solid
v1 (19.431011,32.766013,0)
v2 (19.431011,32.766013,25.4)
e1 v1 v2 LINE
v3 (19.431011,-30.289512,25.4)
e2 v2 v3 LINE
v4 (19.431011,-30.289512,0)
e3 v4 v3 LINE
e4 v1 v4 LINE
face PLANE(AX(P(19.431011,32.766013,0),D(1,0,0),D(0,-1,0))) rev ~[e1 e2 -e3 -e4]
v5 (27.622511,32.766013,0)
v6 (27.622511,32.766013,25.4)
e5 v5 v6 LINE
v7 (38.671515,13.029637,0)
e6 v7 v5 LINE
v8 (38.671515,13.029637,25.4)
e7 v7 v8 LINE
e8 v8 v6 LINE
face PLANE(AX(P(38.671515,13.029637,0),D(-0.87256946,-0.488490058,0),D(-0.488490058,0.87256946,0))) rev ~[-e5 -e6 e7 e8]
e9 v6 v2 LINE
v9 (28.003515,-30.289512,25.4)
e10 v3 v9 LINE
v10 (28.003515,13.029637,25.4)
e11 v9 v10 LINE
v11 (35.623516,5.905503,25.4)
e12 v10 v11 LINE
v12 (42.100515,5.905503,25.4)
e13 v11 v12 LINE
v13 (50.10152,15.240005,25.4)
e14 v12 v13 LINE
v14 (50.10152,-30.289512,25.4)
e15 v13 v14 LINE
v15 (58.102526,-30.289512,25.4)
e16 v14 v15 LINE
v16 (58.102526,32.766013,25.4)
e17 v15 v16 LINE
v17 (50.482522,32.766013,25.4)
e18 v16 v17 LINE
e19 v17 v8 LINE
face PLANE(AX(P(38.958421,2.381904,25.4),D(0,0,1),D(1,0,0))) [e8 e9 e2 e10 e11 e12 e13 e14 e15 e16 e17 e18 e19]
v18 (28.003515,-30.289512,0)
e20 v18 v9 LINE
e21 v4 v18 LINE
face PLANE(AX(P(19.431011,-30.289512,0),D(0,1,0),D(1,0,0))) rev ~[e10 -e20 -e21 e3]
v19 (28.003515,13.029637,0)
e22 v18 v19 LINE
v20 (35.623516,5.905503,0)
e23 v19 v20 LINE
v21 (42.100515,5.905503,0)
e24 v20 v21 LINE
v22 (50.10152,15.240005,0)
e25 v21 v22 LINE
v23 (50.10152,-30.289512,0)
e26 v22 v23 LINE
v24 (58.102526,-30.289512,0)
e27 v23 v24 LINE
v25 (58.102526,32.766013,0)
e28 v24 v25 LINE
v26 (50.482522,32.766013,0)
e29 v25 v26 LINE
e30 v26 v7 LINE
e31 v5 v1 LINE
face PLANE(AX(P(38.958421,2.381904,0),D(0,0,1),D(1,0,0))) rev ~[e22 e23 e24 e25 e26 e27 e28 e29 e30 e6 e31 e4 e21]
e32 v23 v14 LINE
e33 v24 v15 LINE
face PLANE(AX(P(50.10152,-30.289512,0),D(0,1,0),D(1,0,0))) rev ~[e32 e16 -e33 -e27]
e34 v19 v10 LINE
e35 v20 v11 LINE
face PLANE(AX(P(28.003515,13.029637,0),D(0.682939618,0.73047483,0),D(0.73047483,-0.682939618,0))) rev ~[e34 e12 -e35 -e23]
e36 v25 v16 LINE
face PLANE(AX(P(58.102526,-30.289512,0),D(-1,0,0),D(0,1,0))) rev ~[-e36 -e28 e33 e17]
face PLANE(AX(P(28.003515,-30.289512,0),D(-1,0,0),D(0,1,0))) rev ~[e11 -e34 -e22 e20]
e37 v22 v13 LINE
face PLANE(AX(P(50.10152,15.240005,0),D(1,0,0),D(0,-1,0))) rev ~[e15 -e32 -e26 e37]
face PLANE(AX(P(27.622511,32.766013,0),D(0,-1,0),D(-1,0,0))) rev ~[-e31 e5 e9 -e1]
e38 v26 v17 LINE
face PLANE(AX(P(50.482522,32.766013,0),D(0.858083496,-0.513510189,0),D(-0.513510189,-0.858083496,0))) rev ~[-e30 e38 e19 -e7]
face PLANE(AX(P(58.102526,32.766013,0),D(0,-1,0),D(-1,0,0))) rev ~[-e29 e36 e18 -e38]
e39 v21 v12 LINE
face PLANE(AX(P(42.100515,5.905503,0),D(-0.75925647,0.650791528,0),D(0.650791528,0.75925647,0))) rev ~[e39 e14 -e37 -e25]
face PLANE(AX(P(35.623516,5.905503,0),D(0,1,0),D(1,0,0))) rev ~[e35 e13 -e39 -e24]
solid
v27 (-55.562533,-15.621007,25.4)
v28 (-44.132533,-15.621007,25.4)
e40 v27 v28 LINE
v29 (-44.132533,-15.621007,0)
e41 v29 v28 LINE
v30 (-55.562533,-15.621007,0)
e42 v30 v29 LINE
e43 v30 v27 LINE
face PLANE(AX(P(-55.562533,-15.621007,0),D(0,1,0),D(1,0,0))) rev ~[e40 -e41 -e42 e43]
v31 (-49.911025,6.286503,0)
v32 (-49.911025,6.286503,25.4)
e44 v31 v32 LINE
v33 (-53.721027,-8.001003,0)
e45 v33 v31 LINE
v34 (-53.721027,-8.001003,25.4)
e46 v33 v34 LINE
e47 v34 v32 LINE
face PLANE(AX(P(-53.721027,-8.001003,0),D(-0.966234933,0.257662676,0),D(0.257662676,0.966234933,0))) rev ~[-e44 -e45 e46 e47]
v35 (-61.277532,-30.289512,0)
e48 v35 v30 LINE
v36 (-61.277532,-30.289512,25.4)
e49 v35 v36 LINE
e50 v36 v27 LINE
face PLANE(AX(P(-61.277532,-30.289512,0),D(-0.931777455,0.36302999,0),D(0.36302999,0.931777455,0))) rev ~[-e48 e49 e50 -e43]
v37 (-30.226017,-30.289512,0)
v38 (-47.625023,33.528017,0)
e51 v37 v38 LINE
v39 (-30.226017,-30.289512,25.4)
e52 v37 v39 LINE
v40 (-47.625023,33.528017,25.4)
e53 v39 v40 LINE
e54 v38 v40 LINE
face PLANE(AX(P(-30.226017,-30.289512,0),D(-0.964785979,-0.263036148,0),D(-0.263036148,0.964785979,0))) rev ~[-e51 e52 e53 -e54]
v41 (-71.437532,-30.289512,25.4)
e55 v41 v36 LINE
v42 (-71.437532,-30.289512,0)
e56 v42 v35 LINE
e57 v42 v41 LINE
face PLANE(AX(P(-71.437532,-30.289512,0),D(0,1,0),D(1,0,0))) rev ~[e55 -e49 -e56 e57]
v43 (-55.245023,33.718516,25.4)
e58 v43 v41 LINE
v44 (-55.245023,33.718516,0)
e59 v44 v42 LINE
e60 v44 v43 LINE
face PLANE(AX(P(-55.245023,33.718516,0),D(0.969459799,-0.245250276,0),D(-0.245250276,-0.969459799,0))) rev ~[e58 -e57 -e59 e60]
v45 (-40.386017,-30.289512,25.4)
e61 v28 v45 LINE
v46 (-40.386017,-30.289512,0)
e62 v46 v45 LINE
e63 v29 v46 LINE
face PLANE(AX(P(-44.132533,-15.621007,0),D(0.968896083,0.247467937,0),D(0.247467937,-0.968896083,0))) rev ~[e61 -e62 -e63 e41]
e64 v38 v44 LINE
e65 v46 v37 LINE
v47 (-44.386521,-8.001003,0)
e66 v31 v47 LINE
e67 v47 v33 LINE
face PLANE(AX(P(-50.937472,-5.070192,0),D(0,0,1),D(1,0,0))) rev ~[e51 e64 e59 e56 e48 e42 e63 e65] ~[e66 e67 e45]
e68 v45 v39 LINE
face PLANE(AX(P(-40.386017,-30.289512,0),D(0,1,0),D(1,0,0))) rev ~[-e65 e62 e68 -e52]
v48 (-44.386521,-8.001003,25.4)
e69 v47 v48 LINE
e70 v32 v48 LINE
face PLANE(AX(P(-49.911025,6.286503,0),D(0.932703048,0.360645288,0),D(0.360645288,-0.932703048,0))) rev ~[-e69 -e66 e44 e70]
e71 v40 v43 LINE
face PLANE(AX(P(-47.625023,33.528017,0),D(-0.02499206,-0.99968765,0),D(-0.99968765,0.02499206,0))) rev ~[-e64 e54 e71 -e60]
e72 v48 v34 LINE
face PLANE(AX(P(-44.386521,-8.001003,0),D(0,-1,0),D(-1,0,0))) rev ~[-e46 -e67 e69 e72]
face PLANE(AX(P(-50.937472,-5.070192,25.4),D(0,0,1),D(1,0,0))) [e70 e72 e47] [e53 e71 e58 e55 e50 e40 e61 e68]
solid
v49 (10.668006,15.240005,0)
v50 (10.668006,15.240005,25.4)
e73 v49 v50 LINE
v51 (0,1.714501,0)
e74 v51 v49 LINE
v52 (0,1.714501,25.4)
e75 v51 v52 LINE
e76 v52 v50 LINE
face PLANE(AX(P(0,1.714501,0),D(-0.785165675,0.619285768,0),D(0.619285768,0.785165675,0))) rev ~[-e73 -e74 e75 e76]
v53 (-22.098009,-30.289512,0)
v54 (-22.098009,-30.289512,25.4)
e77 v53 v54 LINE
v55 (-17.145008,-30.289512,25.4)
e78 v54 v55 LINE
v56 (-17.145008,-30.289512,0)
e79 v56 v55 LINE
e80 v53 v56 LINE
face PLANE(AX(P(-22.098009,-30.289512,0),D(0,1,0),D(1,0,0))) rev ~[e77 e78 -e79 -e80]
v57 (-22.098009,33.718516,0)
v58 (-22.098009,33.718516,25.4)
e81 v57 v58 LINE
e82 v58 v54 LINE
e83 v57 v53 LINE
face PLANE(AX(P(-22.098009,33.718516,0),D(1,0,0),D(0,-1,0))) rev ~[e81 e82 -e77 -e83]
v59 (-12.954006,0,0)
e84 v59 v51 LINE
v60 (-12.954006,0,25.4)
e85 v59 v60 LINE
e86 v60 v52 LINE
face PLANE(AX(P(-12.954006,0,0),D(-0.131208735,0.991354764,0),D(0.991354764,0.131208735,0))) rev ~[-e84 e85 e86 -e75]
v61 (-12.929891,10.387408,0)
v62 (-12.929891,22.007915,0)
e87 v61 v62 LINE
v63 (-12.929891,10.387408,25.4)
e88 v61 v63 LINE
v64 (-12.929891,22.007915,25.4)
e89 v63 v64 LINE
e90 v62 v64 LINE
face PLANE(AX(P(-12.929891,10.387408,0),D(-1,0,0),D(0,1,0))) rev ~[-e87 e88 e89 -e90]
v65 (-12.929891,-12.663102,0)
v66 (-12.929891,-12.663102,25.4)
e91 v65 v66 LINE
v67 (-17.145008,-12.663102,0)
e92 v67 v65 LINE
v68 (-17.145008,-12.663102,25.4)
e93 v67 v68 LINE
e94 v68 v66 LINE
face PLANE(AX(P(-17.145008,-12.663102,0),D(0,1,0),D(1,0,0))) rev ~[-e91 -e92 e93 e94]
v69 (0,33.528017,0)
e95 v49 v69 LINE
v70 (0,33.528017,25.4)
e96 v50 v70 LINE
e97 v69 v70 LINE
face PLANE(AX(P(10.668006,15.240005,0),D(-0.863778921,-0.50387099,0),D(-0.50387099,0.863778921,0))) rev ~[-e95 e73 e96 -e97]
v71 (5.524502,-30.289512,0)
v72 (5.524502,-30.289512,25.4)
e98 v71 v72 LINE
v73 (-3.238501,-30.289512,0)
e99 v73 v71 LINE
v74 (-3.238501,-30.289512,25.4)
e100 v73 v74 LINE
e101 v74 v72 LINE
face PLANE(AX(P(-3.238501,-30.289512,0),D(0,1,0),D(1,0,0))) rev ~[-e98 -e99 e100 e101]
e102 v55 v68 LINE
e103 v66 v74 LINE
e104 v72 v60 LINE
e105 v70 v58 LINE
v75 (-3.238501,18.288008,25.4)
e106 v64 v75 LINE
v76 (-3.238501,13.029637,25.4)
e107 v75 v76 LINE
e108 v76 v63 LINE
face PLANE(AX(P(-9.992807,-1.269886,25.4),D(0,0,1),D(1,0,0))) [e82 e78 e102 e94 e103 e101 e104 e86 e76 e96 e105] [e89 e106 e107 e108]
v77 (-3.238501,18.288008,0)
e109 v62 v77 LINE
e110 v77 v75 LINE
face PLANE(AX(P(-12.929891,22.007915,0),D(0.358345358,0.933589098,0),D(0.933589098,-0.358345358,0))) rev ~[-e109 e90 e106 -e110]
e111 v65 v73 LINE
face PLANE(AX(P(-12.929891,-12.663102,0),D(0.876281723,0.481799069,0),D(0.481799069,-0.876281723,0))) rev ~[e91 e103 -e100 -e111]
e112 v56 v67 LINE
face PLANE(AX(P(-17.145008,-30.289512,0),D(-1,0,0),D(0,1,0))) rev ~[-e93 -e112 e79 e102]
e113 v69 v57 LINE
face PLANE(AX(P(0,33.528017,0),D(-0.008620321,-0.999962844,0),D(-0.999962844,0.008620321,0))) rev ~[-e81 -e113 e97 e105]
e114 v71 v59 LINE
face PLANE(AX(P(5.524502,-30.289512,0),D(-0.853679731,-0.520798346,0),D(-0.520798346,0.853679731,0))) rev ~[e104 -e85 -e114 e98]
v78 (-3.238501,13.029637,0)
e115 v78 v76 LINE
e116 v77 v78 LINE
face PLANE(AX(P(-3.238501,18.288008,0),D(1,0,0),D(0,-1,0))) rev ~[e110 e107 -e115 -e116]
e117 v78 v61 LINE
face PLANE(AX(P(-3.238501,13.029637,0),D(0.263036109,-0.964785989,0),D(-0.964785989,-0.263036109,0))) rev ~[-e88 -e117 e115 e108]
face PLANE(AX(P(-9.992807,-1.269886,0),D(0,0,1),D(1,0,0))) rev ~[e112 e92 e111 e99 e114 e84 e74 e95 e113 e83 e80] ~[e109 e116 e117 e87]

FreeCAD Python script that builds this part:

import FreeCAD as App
import Part
import Sketcher

V = App.Vector
Q = App.Units.Quantity


def add_polygon(sketch, points):
    """Adds a closed chain of lines whose ends are joined by coincident constraints."""
    first, n = sketch.GeometryCount, len(points)
    for a, b in zip(points, points[1:] + points[:1]):
        sketch.addGeometry(Part.LineSegment(App.Vector(*a, 0), App.Vector(*b, 0)), False)
    for i in range(n):
        sketch.addConstraint(Sketcher.Constraint("Coincident", first + i, 2, first + (i + 1) % n, 1))

doc = App.newDocument("Part")
body = doc.addObject("PartDesign::Body", "Body")
body.AllowCompound = True

# Sketch on XY plane
sketch1 = body.newObject("Sketcher::SketchObject", "Sketch")
sketch1.AttachmentSupport = (doc.getObject("XY_Plane"), [""])
sketch1.MapMode = "FlatFace"
add_polygon(sketch1, [(-47.6, 33.5), (-55.2, 33.7), (-71.4, -30.3), (-61.3, -30.3), (-55.6, -15.6), (-44.1, -15.6), (-40.4, -30.3), (-30.2, -30.3)])  # lines 0-7
add_polygon(sketch1, [(-49.9, 6.3), (-44.4, -8), (-53.7, -8)])  # lines 8-10
add_polygon(sketch1, [(-22.1, 33.7), (-22.1, -30.3), (-17.1, -30.3), (-17.1, -12.7), (-12.9, -12.7), (-3.2, -30.3), (5.5, -30.3), (-13, 0), (0, 1.7), (10.7, 15.2), (0, 33.5)])  # lines 11-21
add_polygon(sketch1, [(-3.2, 13), (-12.9, 10.4), (-12.9, 22), (-3.2, 18.3)])  # lines 22-25
add_polygon(sketch1, [(19.4, 32.8), (19.4, -30.3), (28, -30.3), (28, 13), (35.6, 5.9), (42.1, 5.9), (50.1, 15.2), (50.1, -30.3), (58.1, -30.3), (58.1, 32.8), (50.5, 32.8), (38.7, 13), (27.6, 32.8)])  # lines 26-38
sketch1.addConstraint([
    Sketcher.Constraint("Horizontal", 2),
    Sketcher.Constraint("Horizontal", 4),
    Sketcher.Constraint("Horizontal", 6),
    Sketcher.Constraint("Horizontal", 9),
    Sketcher.Constraint("Vertical", 11),
    Sketcher.Constraint("Horizontal", 12),
    Sketcher.Constraint("Vertical", 13),
    Sketcher.Constraint("Horizontal", 14),
    Sketcher.Constraint("Horizontal", 16),
    Sketcher.Constraint("Vertical", 23),
    Sketcher.Constraint("Vertical", 25),
    Sketcher.Constraint("Vertical", 26),
    Sketcher.Constraint("Horizontal", 27),
    Sketcher.Constraint("Vertical", 28),
    Sketcher.Constraint("Horizontal", 30),
    Sketcher.Constraint("Vertical", 32),
    Sketcher.Constraint("Horizontal", 33),
    Sketcher.Constraint("Vertical", 34),
    Sketcher.Constraint("Horizontal", 35),
    Sketcher.Constraint("Horizontal", 38),
    Sketcher.Constraint("PointOnObject", 17, 2, -1),
    Sketcher.Constraint("PointOnObject", 18, 2, -2),
    Sketcher.Constraint("PointOnObject", 20, 2, -2),
    Sketcher.Constraint("Perpendicular", 7, 22),
    Sketcher.Constraint("Horizontal", 2, 2, 5, 2),
    Sketcher.Constraint("Horizontal", 6, 2, 11, 2),
    Sketcher.Constraint("Horizontal", 12, 2, 15, 2),
    Sketcher.Constraint("Horizontal", 7, 2, 20, 2),
    Sketcher.Constraint("Horizontal", 0, 2, 21, 2),
    Sketcher.Constraint("Horizontal", 16, 2, 26, 2),
    Sketcher.Constraint("Horizontal", 25, 2, 28, 2),
    Sketcher.Constraint("Horizontal", 19, 2, 31, 2),
    Sketcher.Constraint("Horizontal", 27, 2, 32, 2),
    Sketcher.Constraint("Horizontal", 28, 2, 36, 2),
    Sketcher.Constraint("Horizontal", 35, 2, 37, 2),
    Sketcher.Constraint("Vertical", 14, 2, 22, 2),
    Sketcher.Constraint("Vertical", 15, 2, 24, 2),
    Sketcher.Constraint("Equal", 2, 6),
    Sketcher.Constraint("DistanceX", 2, 1, 2, 2, Q("0.4 in")),
    Sketcher.Constraint("DistanceX", 35, 2, 35, 1, Q("0.3000002 in")),
    Sketcher.Constraint("DistanceX", 4, 1, 4, 2, Q("0.45 in")),
    Sketcher.Constraint("DistanceY", -1, 1, 19, 2, Q("0.6000002 in")),
    Sketcher.Constraint("DistanceX", 0, 2, 7, 2, Q("0.3 in")),
    Sketcher.Constraint("DistanceY", 4, 2, 8, 2, Q("0.3000002 in")),
    Sketcher.Constraint("DistanceX", 28, 2, 29, 2, Q("0.3 in")),
    Sketcher.Constraint("DistanceX", 12, 1, 12, 2, Q("0.195 in")),
    Sketcher.Constraint("DistanceX", 16, 1, 16, 2, Q("0.3450001 in")),
    Sketcher.Constraint("DistanceX", 30, 1, 30, 2, Q("0.255 in")),
    Sketcher.Constraint("DistanceX", 9, 2, 10, 2, Q("0.1500001 in")),
    Sketcher.Constraint("DistanceX", 10, 2, 7, 2, Q("0.0900001 in")),
    Sketcher.Constraint("DistanceX", 11, 2, 17, 2, Q("0.3600001 in")),
    Sketcher.Constraint("DistanceY", 19, 2, 24, 2, Q("0.1200001 in")),
    Sketcher.Constraint("DistanceX", 29, 2, 31, 2, Q("0.5700002 in")),
    Sketcher.Constraint("DistanceX", 29, 2, 36, 2, Q("0.12 in")),
    Sketcher.Constraint("DistanceY", 37, 2, 20, 2, Q("0.0300002 in")),
    Sketcher.Constraint("DistanceY", 24, 2, 38, 2, Q("0.5700002 in")),
    Sketcher.Constraint("DistanceX", 27, 1, 27, 2, Q("0.3375002 in")),
    Sketcher.Constraint("DistanceX", 38, 2, 38, 1, Q("0.3225 in")),
    Sketcher.Constraint("DistanceY", 8, 2, -1, 1, Q("0.3150001 in")),
    Sketcher.Constraint("DistanceX", 2, 2, 3, 2, Q("0.225 in")),
    Sketcher.Constraint("DistanceY", 18, 2, 29, 2, Q("0.1650001 in")),
    Sketcher.Constraint("DistanceX", 31, 2, 35, 2, Q("0.0150001 in")),
    Sketcher.Constraint("DistanceX", 19, 2, 38, 2, Q("0.3450002 in")),
    Sketcher.Constraint("DistanceY", -1, 1, 10, 2, Q("0.2475001 in")),
    Sketcher.Constraint("DistanceX", 15, 2, -1, 1, Q("0.1275 in")),
    Sketcher.Constraint("DistanceY", -1, 1, 18, 2, Q("0.0675 in")),
    Sketcher.Constraint("DistanceY", 2, 2, 3, 2, Q("0.5775002 in")),
    Sketcher.Constraint("DistanceY", 7, 2, 0, 2, Q("0.0075 in")),
    Sketcher.Constraint("DistanceX", 8, 2, 5, 2, Q("0.1575002 in")),
    Sketcher.Constraint("DistanceX", 2, 2, 9, 2, Q("0.2975002 in")),
    Sketcher.Constraint("DistanceX", 10, 2, 8, 2, Q("0.2175002 in")),
    Sketcher.Constraint("DistanceX", 17, 2, 15, 2, Q("0.3825002 in")),
    Sketcher.Constraint("DistanceX", 16, 2, 19, 2, Q("0.2025002 in")),
    Sketcher.Constraint("DistanceY", 13, 1, 13, 2, 17.62641),
    Sketcher.Constraint("DistanceY", 25, 2, 25, 1, 5.258371),
    Sketcher.Constraint("DistanceY", 23, 2, 21, 2, 11.710601),
    Sketcher.Constraint("DistanceY", 22, 2, 24, 2, 7.9006),
    Sketcher.Constraint("DistanceX", 8, 2, -1, 1, 44.386521),
])
pad1 = body.newObject("PartDesign::Pad", "Pad")
pad1.Profile = sketch1
pad1.Length = Q("1 in")

doc.recompute()
